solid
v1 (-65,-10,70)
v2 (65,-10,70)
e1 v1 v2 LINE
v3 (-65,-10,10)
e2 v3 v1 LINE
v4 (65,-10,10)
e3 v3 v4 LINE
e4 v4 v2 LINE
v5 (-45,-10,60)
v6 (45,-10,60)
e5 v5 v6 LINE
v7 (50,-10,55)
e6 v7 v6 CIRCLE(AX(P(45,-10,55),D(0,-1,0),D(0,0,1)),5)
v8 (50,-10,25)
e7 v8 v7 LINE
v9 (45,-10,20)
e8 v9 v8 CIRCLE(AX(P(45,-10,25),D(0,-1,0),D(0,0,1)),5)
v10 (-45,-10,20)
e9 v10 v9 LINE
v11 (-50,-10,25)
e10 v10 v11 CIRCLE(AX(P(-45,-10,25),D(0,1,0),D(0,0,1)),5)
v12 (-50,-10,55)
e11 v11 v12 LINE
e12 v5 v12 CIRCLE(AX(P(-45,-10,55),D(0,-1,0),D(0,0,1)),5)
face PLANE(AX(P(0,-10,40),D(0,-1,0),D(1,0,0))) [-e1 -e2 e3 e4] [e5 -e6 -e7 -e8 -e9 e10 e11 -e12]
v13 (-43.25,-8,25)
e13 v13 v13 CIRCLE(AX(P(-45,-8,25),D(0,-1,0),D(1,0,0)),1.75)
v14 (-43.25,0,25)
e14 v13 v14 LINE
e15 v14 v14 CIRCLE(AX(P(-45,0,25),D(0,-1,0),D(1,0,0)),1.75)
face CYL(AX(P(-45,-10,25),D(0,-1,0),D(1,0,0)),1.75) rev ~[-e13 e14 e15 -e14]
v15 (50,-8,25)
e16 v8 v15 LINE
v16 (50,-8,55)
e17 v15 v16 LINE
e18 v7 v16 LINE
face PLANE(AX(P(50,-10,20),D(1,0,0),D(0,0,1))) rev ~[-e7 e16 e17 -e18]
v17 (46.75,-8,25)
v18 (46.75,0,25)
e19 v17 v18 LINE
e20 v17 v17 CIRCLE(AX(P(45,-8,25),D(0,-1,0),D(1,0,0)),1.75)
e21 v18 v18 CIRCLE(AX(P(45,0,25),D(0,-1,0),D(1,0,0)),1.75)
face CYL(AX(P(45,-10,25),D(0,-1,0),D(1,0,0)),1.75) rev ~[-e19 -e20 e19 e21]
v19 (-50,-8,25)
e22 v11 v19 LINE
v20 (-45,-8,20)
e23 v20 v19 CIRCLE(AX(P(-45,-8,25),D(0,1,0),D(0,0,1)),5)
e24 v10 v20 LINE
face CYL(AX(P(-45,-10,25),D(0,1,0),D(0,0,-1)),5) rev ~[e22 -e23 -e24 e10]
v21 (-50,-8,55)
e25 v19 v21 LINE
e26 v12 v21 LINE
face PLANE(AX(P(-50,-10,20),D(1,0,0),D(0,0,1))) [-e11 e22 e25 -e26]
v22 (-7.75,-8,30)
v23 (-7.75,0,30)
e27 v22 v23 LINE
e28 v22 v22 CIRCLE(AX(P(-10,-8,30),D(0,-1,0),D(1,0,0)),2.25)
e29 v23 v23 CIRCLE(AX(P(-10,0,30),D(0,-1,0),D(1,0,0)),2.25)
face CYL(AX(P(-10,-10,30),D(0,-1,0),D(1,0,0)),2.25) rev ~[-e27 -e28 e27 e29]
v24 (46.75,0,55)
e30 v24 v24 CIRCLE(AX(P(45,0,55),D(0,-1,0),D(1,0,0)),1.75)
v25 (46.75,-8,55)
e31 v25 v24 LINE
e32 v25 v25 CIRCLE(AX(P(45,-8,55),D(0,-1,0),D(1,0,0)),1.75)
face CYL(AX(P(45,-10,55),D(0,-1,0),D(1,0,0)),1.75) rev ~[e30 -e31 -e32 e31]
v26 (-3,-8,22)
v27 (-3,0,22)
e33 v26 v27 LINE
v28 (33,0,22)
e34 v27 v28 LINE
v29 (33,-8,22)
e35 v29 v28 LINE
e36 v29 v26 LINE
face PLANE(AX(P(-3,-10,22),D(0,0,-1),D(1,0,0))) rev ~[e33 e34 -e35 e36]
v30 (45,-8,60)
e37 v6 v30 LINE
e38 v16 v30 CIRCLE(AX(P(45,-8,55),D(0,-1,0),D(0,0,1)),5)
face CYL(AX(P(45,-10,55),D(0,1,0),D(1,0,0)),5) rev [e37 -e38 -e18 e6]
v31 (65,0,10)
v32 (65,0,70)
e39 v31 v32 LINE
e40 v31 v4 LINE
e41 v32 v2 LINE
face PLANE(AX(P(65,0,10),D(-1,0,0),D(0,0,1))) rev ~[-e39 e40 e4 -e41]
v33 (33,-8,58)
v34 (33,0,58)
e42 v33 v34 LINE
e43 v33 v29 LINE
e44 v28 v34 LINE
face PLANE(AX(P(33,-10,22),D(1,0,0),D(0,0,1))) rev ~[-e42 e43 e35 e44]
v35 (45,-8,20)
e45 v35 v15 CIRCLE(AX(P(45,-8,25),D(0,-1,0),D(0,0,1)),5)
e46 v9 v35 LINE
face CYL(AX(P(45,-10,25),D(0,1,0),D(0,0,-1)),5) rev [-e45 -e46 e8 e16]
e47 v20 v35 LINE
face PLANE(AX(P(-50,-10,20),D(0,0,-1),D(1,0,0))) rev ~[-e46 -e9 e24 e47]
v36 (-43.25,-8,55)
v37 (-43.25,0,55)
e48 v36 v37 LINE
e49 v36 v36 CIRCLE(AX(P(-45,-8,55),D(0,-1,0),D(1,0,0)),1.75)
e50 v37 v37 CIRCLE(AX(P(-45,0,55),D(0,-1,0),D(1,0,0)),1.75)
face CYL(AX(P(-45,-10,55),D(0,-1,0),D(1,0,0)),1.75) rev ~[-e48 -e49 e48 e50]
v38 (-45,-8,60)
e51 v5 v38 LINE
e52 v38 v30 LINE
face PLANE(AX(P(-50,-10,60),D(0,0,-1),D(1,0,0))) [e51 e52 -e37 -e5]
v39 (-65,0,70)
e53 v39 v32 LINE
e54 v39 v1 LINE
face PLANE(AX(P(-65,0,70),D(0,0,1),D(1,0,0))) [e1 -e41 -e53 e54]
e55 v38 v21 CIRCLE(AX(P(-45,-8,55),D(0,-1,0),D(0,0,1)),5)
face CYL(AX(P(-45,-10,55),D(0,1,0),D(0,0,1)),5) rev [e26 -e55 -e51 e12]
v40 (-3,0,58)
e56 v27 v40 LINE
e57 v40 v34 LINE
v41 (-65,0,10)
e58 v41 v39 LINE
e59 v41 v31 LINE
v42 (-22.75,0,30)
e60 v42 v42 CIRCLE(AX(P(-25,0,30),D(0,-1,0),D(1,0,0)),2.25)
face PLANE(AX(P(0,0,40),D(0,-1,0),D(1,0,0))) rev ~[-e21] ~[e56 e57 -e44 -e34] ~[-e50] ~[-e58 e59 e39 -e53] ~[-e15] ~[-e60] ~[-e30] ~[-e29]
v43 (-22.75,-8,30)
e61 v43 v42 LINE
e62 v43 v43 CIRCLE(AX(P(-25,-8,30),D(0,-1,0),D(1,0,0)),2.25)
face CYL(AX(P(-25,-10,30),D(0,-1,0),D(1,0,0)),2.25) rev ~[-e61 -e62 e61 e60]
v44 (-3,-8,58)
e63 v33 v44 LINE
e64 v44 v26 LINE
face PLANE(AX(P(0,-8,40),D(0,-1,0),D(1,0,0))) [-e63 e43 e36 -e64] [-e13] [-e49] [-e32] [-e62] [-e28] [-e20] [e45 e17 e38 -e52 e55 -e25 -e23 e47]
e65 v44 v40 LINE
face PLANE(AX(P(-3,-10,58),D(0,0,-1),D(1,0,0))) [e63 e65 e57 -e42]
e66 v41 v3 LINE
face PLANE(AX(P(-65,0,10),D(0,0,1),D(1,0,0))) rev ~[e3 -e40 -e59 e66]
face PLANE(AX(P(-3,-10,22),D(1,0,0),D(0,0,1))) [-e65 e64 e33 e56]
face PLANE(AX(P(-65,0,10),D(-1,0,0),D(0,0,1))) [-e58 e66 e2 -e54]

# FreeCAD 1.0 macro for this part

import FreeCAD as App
import Part
import Sketcher
from FreeCAD import Vector
Q = App.Units.Quantity


def edges_at(feature, points):
    """Names of the edges that pass closest to the given points."""
    edges = feature.Shape.Edges
    near = lambda p: min(range(len(edges)), key=lambda i: edges[i].distToShape(Part.Vertex(*p))[0])
    return sorted({f"Edge{near(p) + 1}" for p in points})

doc = App.newDocument("Part")
params = doc.addObject("Spreadsheet::Sheet", "Params")
for row, (alias, value) in enumerate([
    ("sketch1_width", "130 mm"),
    ("sketch1_height", "60 mm"),
    ("pad1_length", "10 mm"),
    ("sketch2_diameter", "4.5 mm"),
    ("sketch2_diameter2", "3.5 mm"),
    ("sketch2_width", "36 mm"),
    ("sketch3_width", "100 mm"),
    ("sketch3_height", "40 mm"),
    ("pocket2_length", "2 mm"),
    ("fillet_radius", "5 mm"),
], start=1):
    params.set(f"A{row}", alias)
    params.set(f"B{row}", "=" + value)
    params.setAlias(f"B{row}", alias)

body = doc.addObject("PartDesign::Body", "Body")

sketch1 = body.newObject("Sketcher::SketchObject", "Sketch")
sketch1.AttachmentSupport = (doc.getObject("XZ_Plane"), [""])
sketch1.MapMode = "FlatFace"
sketch1.addGeometry(Part.LineSegment(Vector(-65, 70, 0), Vector(-65, 10, 0)), False)
sketch1.addGeometry(Part.LineSegment(Vector(-65, 10, 0), Vector(65, 10, 0)), False)
sketch1.addGeometry(Part.LineSegment(Vector(65, 10, 0), Vector(65, 70, 0)), False)
sketch1.addGeometry(Part.LineSegment(Vector(65, 70, 0), Vector(-65, 70, 0)), False)
sketch1.addConstraint(Sketcher.Constraint("Coincident", 0, 2, 1, 1))
sketch1.addConstraint(Sketcher.Constraint("Coincident", 1, 2, 2, 1))
sketch1.addConstraint(Sketcher.Constraint("Coincident", 2, 2, 3, 1))
sketch1.addConstraint(Sketcher.Constraint("Coincident", 3, 2, 0, 1))
sketch1.addConstraint(Sketcher.Constraint("Vertical", 0))
sketch1.addConstraint(Sketcher.Constraint("Horizontal", 1))
sketch1.addConstraint(Sketcher.Constraint("Vertical", 2))
sketch1.addConstraint(Sketcher.Constraint("Horizontal", 3))
sketch1.addConstraint(Sketcher.Constraint("DistanceX", 1, 1, 1, 2, Q("130 mm")))
sketch1.addConstraint(Sketcher.Constraint("DistanceY", 0, 2, 0, 1, Q("60 mm")))
sketch1.addConstraint(Sketcher.Constraint("DistanceX", 0, 2, -1, 1, Q("65 mm")))
sketch1.addConstraint(Sketcher.Constraint("DistanceY", -1, 1, 0, 2, Q("10 mm")))
sketch1.setExpression("Constraints[8]", "Params.sketch1_width")
sketch1.setExpression("Constraints[9]", "Params.sketch1_height")
pad1 = body.newObject("PartDesign::Pad", "Pad")
pad1.Profile = sketch1
pad1.setExpression("Length", "Params.pad1_length")

sketch2 = body.newObject("Sketcher::SketchObject", "Sketch001")
sketch2.AttachmentSupport = (doc.getObject("XZ_Plane"), [""])
sketch2.MapMode = "FlatFace"
sketch2.AttachmentOffset = App.Placement(Vector(0, 0, 10), App.Rotation())
sketch2.addGeometry(Part.Circle(Vector(-25, 30, 0), Vector(0, 0, 1), 2.25), False)
sketch2.addGeometry(Part.Circle(Vector(-10, 30, 0), Vector(0, 0, 1), 2.25), False)
sketch2.addGeometry(Part.Circle(Vector(-45, 55, 0), Vector(0, 0, 1), 1.75), False)
sketch2.addGeometry(Part.Circle(Vector(-45, 25, 0), Vector(0, 0, 1), 1.75), False)
sketch2.addGeometry(Part.Circle(Vector(45, 55, 0), Vector(0, 0, 1), 1.75), False)
sketch2.addGeometry(Part.Circle(Vector(45, 25, 0), Vector(0, 0, 1), 1.75), False)
sketch2.addGeometry(Part.LineSegment(Vector(-3, 58, 0), Vector(-3, 22, 0)), False)
sketch2.addGeometry(Part.LineSegment(Vector(-3, 22, 0), Vector(33, 22, 0)), False)
sketch2.addGeometry(Part.LineSegment(Vector(33, 22, 0), Vector(33, 58, 0)), False)
sketch2.addGeometry(Part.LineSegment(Vector(33, 58, 0), Vector(-3, 58, 0)), False)
sketch2.addConstraint(Sketcher.Constraint("Coincident", 6, 2, 7, 1))
sketch2.addConstraint(Sketcher.Constraint("Coincident", 7, 2, 8, 1))
sketch2.addConstraint(Sketcher.Constraint("Coincident", 8, 2, 9, 1))
sketch2.addConstraint(Sketcher.Constraint("Coincident", 9, 2, 6, 1))
sketch2.addConstraint(Sketcher.Constraint("Vertical", 6))
sketch2.addConstraint(Sketcher.Constraint("Horizontal", 7))
sketch2.addConstraint(Sketcher.Constraint("Vertical", 8))
sketch2.addConstraint(Sketcher.Constraint("Horizontal", 9))
sketch2.addConstraint(Sketcher.Constraint("Equal", 0, 1))
sketch2.addConstraint(Sketcher.Constraint("Equal", 2, 3))
sketch2.addConstraint(Sketcher.Constraint("Equal", 3, 4))
sketch2.addConstraint(Sketcher.Constraint("Equal", 4, 5))
sketch2.addConstraint(Sketcher.Constraint("Symmetric", 2, 3, 4, 3, -2))
sketch2.addConstraint(Sketcher.Constraint("Symmetric", 3, 3, 5, 3, -2))
sketch2.addConstraint(Sketcher.Constraint("Horizontal", 0, 3, 1, 3))
sketch2.addConstraint(Sketcher.Constraint("Vertical", 2, 3, 3, 3))
sketch2.addConstraint(Sketcher.Constraint("Equal", 9, 6))
sketch2.addConstraint(Sketcher.Constraint("Diameter", 0, Q("4.5 mm")))
sketch2.addConstraint(Sketcher.Constraint("Diameter", 2, Q("3.5 mm")))
sketch2.addConstraint(Sketcher.Constraint("DistanceX", 7, 1, 7, 2, Q("36 mm")))
sketch2.addConstraint(Sketcher.Constraint("DistanceX", 0, 3, -1, 1, Q("25 mm")))
sketch2.addConstraint(Sketcher.Constraint("DistanceY", -1, 1, 0, 3, Q("30 mm")))
sketch2.addConstraint(Sketcher.Constraint("DistanceX", 1, 3, -1, 1, Q("10 mm")))
sketch2.addConstraint(Sketcher.Constraint("DistanceX", 2, 3, -1, 1, Q("45 mm")))
sketch2.addConstraint(Sketcher.Constraint("DistanceY", -1, 1, 2, 3, Q("55 mm")))
sketch2.addConstraint(Sketcher.Constraint("DistanceY", -1, 1, 3, 3, Q("25 mm")))
sketch2.addConstraint(Sketcher.Constraint("DistanceX", 6, 2, -1, 1, Q("3 mm")))
sketch2.addConstraint(Sketcher.Constraint("DistanceY", -1, 1, 6, 2, Q("22 mm")))
sketch2.setExpression("Constraints[17]", "Params.sketch2_diameter")
sketch2.setExpression("Constraints[18]", "Params.sketch2_diameter2")
sketch2.setExpression("Constraints[19]", "Params.sketch2_width")
pocket1 = body.newObject("PartDesign::Pocket", "Pocket")
pocket1.Profile = sketch2
pocket1.Type = "ThroughAll"
pocket1.Midplane = True

sketch3 = body.newObject("Sketcher::SketchObject", "Sketch002")
sketch3.AttachmentSupport = (doc.getObject("XZ_Plane"), [""])
sketch3.MapMode = "FlatFace"
sketch3.AttachmentOffset = App.Placement(Vector(0, 0, 10), App.Rotation())
sketch3.addGeometry(Part.LineSegment(Vector(-50, 60, 0), Vector(-50, 20, 0)), False)
sketch3.addGeometry(Part.LineSegment(Vector(-50, 20, 0), Vector(50, 20, 0)), False)
sketch3.addGeometry(Part.LineSegment(Vector(50, 20, 0), Vector(50, 60, 0)), False)
sketch3.addGeometry(Part.LineSegment(Vector(50, 60, 0), Vector(-50, 60, 0)), False)
sketch3.addConstraint(Sketcher.Constraint("Coincident", 0, 2, 1, 1))
sketch3.addConstraint(Sketcher.Constraint("Coincident", 1, 2, 2, 1))
sketch3.addConstraint(Sketcher.Constraint("Coincident", 2, 2, 3, 1))
sketch3.addConstraint(Sketcher.Constraint("Coincident", 3, 2, 0, 1))
sketch3.addConstraint(Sketcher.Constraint("Vertical", 0))
sketch3.addConstraint(Sketcher.Constraint("Horizontal", 1))
sketch3.addConstraint(Sketcher.Constraint("Vertical", 2))
sketch3.addConstraint(Sketcher.Constraint("Horizontal", 3))
sketch3.addConstraint(Sketcher.Constraint("DistanceX", 1, 1, 1, 2, Q("100 mm")))
sketch3.addConstraint(Sketcher.Constraint("DistanceY", 0, 2, 0, 1, Q("40 mm")))
sketch3.addConstraint(Sketcher.Constraint("DistanceX", 0, 2, -1, 1, Q("50 mm")))
sketch3.addConstraint(Sketcher.Constraint("DistanceY", -1, 1, 0, 2, Q("20 mm")))
sketch3.setExpression("Constraints[8]", "Params.sketch3_width")
sketch3.setExpression("Constraints[9]", "Params.sketch3_height")
pocket2 = body.newObject("PartDesign::Pocket", "Pocket001")
pocket2.Profile = sketch3
pocket2.setExpression("Length", "Params.pocket2_length")
doc.recompute()

fillet = body.newObject("PartDesign::Fillet", "Fillet")
fillet.Base = (pocket2, edges_at(pocket2, [
    (50, -9, 60),
    (50, -9, 20),
    (-50, -9, 20),
    (-50, -9, 60),
]))
fillet.setExpression("Radius", "Params.fillet_radius")

doc.recompute()
